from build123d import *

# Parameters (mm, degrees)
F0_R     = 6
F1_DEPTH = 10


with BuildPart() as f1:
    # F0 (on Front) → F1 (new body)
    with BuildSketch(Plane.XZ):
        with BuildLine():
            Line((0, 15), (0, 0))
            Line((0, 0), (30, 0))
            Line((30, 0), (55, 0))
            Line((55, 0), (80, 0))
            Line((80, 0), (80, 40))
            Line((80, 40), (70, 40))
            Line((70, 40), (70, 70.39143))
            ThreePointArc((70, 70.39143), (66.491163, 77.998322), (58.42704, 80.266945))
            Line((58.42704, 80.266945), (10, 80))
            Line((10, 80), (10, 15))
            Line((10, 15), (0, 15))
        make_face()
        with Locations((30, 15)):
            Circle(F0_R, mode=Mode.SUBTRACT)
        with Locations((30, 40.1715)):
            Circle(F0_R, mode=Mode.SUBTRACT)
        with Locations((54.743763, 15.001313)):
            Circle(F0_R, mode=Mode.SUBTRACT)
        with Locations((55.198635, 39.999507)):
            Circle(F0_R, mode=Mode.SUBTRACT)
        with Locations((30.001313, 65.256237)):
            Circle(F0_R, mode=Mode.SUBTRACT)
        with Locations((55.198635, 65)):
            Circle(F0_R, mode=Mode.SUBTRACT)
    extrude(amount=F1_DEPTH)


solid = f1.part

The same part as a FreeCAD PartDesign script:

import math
import FreeCAD as App
import Part
import Sketcher
Q = App.Units.Quantity

doc = App.newDocument("Part")
body = doc.addObject("PartDesign::Body", "Body")

# Sketch on XZ plane
sketch1 = doc.addObject("Sketcher::SketchObject", "Sketch")
body.addObject(sketch1)
sketch1.AttachmentSupport = (doc.XZ_Plane, [""])
sketch1.MapMode = "FlatFace"
sketch1.addGeometry([
    Part.LineSegment(App.Vector(0, 15, 0), App.Vector(0, 0, 0)),  # 0
    Part.LineSegment(App.Vector(0, 0, 0), App.Vector(80, 0, 0)),  # 1
    Part.LineSegment(App.Vector(80, 0, 0), App.Vector(80, 40, 0)),  # 2
    Part.LineSegment(App.Vector(80, 40, 0), App.Vector(70, 40, 0)),  # 3
    Part.LineSegment(App.Vector(70, 40, 0), App.Vector(70, 70, 0)),  # 4
    Part.ArcOfCircle(Part.Circle(App.Vector(60, 70, 0), App.Vector(0, 0, 1), 10), math.radians(0), math.radians(99)),  # 5
    Part.LineSegment(App.Vector(58, 80, 0), App.Vector(10, 80, 0)),  # 6
    Part.LineSegment(App.Vector(10, 80, 0), App.Vector(10, 15, 0)),  # 7
    Part.LineSegment(App.Vector(10, 15, 0), App.Vector(0, 15, 0)),  # 8
    Part.Circle(App.Vector(30, 15, 0), App.Vector(0, 0, 1), 6),  # 9
    Part.Circle(App.Vector(55, 15, 0), App.Vector(0, 0, 1), 6),  # 10
    Part.Circle(App.Vector(55, 40, 0), App.Vector(0, 0, 1), 6),  # 11
    Part.Circle(App.Vector(30, 40, 0), App.Vector(0, 0, 1), 6),  # 12
    Part.Circle(App.Vector(30, 65, 0), App.Vector(0, 0, 1), 6),  # 13
    Part.Circle(App.Vector(55, 65, 0), App.Vector(0, 0, 1), 6),  # 14
], False)
sketch1.addConstraint([
    Sketcher.Constraint("Coincident", 0, 2, 1, 1),
    Sketcher.Constraint("Coincident", 1, 2, 2, 1),
    Sketcher.Constraint("Coincident", 2, 2, 3, 1),
    Sketcher.Constraint("Coincident", 3, 2, 4, 1),
    Sketcher.Constraint("Tangent", 4, 2, 5, 1),
    Sketcher.Constraint("Coincident", 5, 2, 6, 1),
    Sketcher.Constraint("Coincident", 6, 2, 7, 1),
    Sketcher.Constraint("Coincident", 7, 2, 8, 1),
    Sketcher.Constraint("Coincident", 8, 2, 0, 1),
    Sketcher.Constraint("Vertical", 0),
    Sketcher.Constraint("Horizontal", 1),
    Sketcher.Constraint("Vertical", 2),
    Sketcher.Constraint("Horizontal", 3),
    Sketcher.Constraint("Vertical", 4),
    Sketcher.Constraint("Vertical", 7),
    Sketcher.Constraint("Horizontal", 8),
    Sketcher.Constraint("Coincident", 0, 2, -1, 1),
    Sketcher.Constraint("Equal", 9, 10),
    Sketcher.Constraint("Equal", 10, 11),
    Sketcher.Constraint("Equal", 11, 12),
    Sketcher.Constraint("Equal", 12, 13),
    Sketcher.Constraint("Equal", 13, 14),
    Sketcher.Constraint("Horizontal", 9, 3, 7, 2),
    Sketcher.Constraint("Vertical", 9, 3, 12, 3),
    Sketcher.Constraint("Vertical", 11, 3, 14, 3),
    Sketcher.Constraint("Equal", 3, 8),
    Sketcher.Constraint("Diameter", 9, Q("12 mm")),
    Sketcher.Constraint("Radius", 5, Q("10 mm")),
    Sketcher.Constraint("DistanceX", 1, 1, 1, 2, Q("80 mm")),
    Sketcher.Constraint("DistanceX", 3, 2, 3, 1, Q("10 mm")),
    Sketcher.Constraint("DistanceY", 0, 2, 0, 1, Q("15 mm")),
    Sketcher.Constraint("DistanceY", 2, 1, 2, 2, Q("40 mm")),
    Sketcher.Constraint("DistanceY", 7, 2, 7, 1, Q("65 mm")),
    Sketcher.Constraint("DistanceX", -1, 1, 9, 3, Q("30 mm")),
    Sketcher.Constraint("DistanceY", -1, 1, 14, 3, Q("65 mm")),
    Sketcher.Constraint("DistanceY", 4, 1, 4, 2, Q("30.39143 mm")),
    Sketcher.Constraint("DistanceY", -1, 1, 12, 3, Q("40.1715 mm")),
    Sketcher.Constraint("DistanceX", -1, 1, 5, 2, Q("58.42704 mm")),
    Sketcher.Constraint("DistanceY", 11, 3, 13, 3, Q("25.25673 mm")),
    Sketcher.Constraint("DistanceX", 13, 3, 10, 3, Q("24.74245 mm")),
    Sketcher.Constraint("DistanceX", -1, 1, 10, 3, Q("54.743763 mm")),
    Sketcher.Constraint("DistanceY", -1, 1, 10, 3, Q("15.001313 mm")),
    Sketcher.Constraint("DistanceX", -1, 1, 11, 3, Q("55.198635 mm")),
    Sketcher.Constraint("DistanceY", -1, 1, 11, 3, Q("39.999507 mm")),
])
pad1 = doc.addObject("PartDesign::Pad", "Pad")
body.addObject(pad1)
pad1.Profile = sketch1
pad1.Length = 10

doc.recompute()
